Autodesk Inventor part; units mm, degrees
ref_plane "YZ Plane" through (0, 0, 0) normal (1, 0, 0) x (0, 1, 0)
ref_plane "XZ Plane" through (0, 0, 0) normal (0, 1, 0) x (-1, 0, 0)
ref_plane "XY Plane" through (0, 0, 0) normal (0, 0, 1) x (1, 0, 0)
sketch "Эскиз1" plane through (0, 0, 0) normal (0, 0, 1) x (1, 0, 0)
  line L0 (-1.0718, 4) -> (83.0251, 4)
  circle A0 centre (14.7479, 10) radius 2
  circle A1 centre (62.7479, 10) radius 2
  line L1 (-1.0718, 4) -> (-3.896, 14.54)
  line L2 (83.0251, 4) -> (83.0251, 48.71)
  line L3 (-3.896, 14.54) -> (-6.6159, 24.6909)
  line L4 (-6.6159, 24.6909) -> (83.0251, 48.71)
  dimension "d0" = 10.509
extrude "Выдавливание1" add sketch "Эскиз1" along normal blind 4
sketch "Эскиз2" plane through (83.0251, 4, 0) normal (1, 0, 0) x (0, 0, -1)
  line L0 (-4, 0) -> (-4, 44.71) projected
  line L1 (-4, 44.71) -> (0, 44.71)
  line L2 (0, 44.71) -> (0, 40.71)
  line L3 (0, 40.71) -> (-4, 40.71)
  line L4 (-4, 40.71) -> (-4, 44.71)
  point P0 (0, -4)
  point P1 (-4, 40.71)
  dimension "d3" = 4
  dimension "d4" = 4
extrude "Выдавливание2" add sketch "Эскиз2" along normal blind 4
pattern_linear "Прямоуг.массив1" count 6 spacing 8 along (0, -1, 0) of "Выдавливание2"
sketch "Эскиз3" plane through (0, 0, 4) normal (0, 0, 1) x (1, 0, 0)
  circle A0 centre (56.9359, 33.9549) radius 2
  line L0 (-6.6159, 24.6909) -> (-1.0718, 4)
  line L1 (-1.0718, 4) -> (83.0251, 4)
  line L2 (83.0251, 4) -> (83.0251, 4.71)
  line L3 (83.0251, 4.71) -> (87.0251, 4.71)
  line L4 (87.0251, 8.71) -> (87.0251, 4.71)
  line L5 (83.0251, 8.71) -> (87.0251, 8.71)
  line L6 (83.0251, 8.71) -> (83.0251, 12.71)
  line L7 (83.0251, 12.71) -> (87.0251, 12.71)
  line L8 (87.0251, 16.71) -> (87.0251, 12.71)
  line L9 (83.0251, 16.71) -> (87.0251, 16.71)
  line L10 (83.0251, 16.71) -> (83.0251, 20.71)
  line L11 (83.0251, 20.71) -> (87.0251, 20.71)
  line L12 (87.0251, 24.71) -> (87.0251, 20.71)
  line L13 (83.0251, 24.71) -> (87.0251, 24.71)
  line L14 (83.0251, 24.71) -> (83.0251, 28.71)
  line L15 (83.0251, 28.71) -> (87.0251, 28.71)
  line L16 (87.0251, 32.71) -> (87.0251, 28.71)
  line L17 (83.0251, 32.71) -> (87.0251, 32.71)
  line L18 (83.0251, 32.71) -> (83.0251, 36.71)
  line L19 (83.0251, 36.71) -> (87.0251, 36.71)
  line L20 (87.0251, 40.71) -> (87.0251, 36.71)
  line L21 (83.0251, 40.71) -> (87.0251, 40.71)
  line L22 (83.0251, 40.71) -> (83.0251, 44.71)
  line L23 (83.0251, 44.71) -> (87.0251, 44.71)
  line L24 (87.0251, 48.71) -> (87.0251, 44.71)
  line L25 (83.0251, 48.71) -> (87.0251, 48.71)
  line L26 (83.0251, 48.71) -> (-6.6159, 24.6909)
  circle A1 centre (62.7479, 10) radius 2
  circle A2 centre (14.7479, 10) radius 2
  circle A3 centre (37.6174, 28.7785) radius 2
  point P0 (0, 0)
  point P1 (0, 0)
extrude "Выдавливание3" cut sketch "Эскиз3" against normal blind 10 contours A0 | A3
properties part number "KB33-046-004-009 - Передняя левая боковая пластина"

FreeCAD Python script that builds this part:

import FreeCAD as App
import Part
import Sketcher
Q = App.Units.Quantity


def add_polygon(sketch, points):
    """Adds a closed chain of lines whose ends are joined by coincident constraints."""
    first, n = sketch.GeometryCount, len(points)
    for a, b in zip(points, points[1:] + points[:1]):
        sketch.addGeometry(Part.LineSegment(App.Vector(*a, 0), App.Vector(*b, 0)), False)
    for i in range(n):
        sketch.addConstraint(Sketcher.Constraint("Coincident", first + i, 2, first + (i + 1) % n, 1))

doc = App.newDocument("Part")
body = doc.addObject("PartDesign::Body", "Body")

sketch1 = body.newObject("Sketcher::SketchObject", "Sketch")
sketch1.AttachmentSupport = (doc.getObject("XY_Plane"), [""])
sketch1.MapMode = "FlatFace"
add_polygon(sketch1, [(-3.896, 14.54), (-1.0718, 4), (83.0251, 4), (83.0251, 48.71), (-6.6159, 24.6909)])
sketch1.addGeometry(Part.Circle(App.Vector(14.7479, 10, 0), App.Vector(0, 0, 1), 2), False)
sketch1.addGeometry(Part.Circle(App.Vector(62.7479, 10, 0), App.Vector(0, 0, 1), 2), False)
sketch1.addConstraint(Sketcher.Constraint("Horizontal", 1))
sketch1.addConstraint(Sketcher.Constraint("Vertical", 2))
sketch1.addConstraint(Sketcher.Constraint("Equal", 5, 6))
sketch1.addConstraint(Sketcher.Constraint("Perpendicular", 0, 3))
sketch1.addConstraint(Sketcher.Constraint("Perpendicular", 3, 4))
sketch1.addConstraint(Sketcher.Constraint("Horizontal", 5, 3, 6, 3))
sketch1.addConstraint(Sketcher.Constraint("Diameter", 5, Q("4 mm")))
sketch1.addConstraint(Sketcher.Constraint("Angle", 0, Q("-75 deg")))
sketch1.addConstraint(Sketcher.Constraint("Distance", 4, Q("10.509 mm")))
sketch1.addConstraint(Sketcher.Constraint("DistanceY", -1, 1, 5, 3, Q("10 mm")))
sketch1.addConstraint(Sketcher.Constraint("DistanceY", -1, 1, 0, 2, Q("4 mm")))
sketch1.addConstraint(Sketcher.Constraint("DistanceX", 5, 3, 6, 3, Q("48 mm")))
sketch1.addConstraint(Sketcher.Constraint("DistanceY", 2, 1, 2, 2, Q("44.71 mm")))
sketch1.addConstraint(Sketcher.Constraint("DistanceX", 1, 1, 1, 2, Q("84.097 mm")))
sketch1.addConstraint(Sketcher.Constraint("DistanceX", -1, 1, 5, 3, Q("14.748 mm")))
sketch1.addConstraint(Sketcher.Constraint("DistanceX", -1, 1, 1, 2, Q("83.025 mm")))
pad1 = body.newObject("PartDesign::Pad", "Pad")
pad1.Profile = sketch1
pad1.Length = 4

sketch2 = body.newObject("Sketcher::SketchObject", "Sketch001")
sketch2.AttachmentSupport = (doc.getObject("YZ_Plane"), [""])
sketch2.MapMode = "FlatFace"
sketch2.AttachmentOffset = App.Placement(App.Vector(0, 0, 83.0251), App.Rotation())
add_polygon(sketch2, [(48.71, 4), (44.71, 4), (44.71, 0), (48.71, 0)])
sketch2.addConstraint(Sketcher.Constraint("Horizontal", 0))
sketch2.addConstraint(Sketcher.Constraint("Vertical", 1))
sketch2.addConstraint(Sketcher.Constraint("Horizontal", 2))
sketch2.addConstraint(Sketcher.Constraint("Vertical", 3))
sketch2.addConstraint(Sketcher.Constraint("PointOnObject", 1, 2, -1))
sketch2.addConstraint(Sketcher.Constraint("Equal", 2, 1))
sketch2.addConstraint(Sketcher.Constraint("DistanceX", 0, 2, 0, 1, Q("4 mm")))
sketch2.addConstraint(Sketcher.Constraint("DistanceX", -1, 1, 0, 2, Q("44.71 mm")))
pad2 = body.newObject("PartDesign::Pad", "Pad001")
pad2.Profile = sketch2
pad2.Length = 4
doc.recompute()

linearpattern = body.newObject("PartDesign::LinearPattern", "LinearPattern")
linearpattern.Originals = [pad2]
linearpattern.Direction = (doc.getObject("Y_Axis"), [""])
linearpattern.Mode = "offset"
linearpattern.Offset = 8
linearpattern.Occurrences = 6
linearpattern.Reversed = True
body.Tip = linearpattern

sketch3 = body.newObject("Sketcher::SketchObject", "Sketch002")
sketch3.AttachmentSupport = (doc.getObject("XY_Plane"), [""])
sketch3.MapMode = "FlatFace"
sketch3.AttachmentOffset = App.Placement(App.Vector(0, 0, 4), App.Rotation())
sketch3.addGeometry(Part.Circle(App.Vector(56.9359, 33.9549, 0), App.Vector(0, 0, 1), 2), False)
sketch3.addGeometry(Part.Circle(App.Vector(37.6174, 28.7785, 0), App.Vector(0, 0, 1), 2), False)
sketch3.addConstraint(Sketcher.Constraint("Equal", 0, 1))
sketch3.addConstraint(Sketcher.Constraint("Diameter", 0, Q("4 mm")))
sketch3.addConstraint(Sketcher.Constraint("DistanceX", -1, 1, 0, 3, Q("56.936 mm")))
sketch3.addConstraint(Sketcher.Constraint("DistanceY", -1, 1, 0, 3, Q("33.955 mm")))
sketch3.addConstraint(Sketcher.Constraint("DistanceX", -1, 1, 1, 3, Q("37.6174 mm")))
sketch3.addConstraint(Sketcher.Constraint("DistanceY", -1, 1, 1, 3, Q("28.7785 mm")))
pocket1 = body.newObject("PartDesign::Pocket", "Pocket")
pocket1.Profile = sketch3
pocket1.Length = 10

doc.recompute()
